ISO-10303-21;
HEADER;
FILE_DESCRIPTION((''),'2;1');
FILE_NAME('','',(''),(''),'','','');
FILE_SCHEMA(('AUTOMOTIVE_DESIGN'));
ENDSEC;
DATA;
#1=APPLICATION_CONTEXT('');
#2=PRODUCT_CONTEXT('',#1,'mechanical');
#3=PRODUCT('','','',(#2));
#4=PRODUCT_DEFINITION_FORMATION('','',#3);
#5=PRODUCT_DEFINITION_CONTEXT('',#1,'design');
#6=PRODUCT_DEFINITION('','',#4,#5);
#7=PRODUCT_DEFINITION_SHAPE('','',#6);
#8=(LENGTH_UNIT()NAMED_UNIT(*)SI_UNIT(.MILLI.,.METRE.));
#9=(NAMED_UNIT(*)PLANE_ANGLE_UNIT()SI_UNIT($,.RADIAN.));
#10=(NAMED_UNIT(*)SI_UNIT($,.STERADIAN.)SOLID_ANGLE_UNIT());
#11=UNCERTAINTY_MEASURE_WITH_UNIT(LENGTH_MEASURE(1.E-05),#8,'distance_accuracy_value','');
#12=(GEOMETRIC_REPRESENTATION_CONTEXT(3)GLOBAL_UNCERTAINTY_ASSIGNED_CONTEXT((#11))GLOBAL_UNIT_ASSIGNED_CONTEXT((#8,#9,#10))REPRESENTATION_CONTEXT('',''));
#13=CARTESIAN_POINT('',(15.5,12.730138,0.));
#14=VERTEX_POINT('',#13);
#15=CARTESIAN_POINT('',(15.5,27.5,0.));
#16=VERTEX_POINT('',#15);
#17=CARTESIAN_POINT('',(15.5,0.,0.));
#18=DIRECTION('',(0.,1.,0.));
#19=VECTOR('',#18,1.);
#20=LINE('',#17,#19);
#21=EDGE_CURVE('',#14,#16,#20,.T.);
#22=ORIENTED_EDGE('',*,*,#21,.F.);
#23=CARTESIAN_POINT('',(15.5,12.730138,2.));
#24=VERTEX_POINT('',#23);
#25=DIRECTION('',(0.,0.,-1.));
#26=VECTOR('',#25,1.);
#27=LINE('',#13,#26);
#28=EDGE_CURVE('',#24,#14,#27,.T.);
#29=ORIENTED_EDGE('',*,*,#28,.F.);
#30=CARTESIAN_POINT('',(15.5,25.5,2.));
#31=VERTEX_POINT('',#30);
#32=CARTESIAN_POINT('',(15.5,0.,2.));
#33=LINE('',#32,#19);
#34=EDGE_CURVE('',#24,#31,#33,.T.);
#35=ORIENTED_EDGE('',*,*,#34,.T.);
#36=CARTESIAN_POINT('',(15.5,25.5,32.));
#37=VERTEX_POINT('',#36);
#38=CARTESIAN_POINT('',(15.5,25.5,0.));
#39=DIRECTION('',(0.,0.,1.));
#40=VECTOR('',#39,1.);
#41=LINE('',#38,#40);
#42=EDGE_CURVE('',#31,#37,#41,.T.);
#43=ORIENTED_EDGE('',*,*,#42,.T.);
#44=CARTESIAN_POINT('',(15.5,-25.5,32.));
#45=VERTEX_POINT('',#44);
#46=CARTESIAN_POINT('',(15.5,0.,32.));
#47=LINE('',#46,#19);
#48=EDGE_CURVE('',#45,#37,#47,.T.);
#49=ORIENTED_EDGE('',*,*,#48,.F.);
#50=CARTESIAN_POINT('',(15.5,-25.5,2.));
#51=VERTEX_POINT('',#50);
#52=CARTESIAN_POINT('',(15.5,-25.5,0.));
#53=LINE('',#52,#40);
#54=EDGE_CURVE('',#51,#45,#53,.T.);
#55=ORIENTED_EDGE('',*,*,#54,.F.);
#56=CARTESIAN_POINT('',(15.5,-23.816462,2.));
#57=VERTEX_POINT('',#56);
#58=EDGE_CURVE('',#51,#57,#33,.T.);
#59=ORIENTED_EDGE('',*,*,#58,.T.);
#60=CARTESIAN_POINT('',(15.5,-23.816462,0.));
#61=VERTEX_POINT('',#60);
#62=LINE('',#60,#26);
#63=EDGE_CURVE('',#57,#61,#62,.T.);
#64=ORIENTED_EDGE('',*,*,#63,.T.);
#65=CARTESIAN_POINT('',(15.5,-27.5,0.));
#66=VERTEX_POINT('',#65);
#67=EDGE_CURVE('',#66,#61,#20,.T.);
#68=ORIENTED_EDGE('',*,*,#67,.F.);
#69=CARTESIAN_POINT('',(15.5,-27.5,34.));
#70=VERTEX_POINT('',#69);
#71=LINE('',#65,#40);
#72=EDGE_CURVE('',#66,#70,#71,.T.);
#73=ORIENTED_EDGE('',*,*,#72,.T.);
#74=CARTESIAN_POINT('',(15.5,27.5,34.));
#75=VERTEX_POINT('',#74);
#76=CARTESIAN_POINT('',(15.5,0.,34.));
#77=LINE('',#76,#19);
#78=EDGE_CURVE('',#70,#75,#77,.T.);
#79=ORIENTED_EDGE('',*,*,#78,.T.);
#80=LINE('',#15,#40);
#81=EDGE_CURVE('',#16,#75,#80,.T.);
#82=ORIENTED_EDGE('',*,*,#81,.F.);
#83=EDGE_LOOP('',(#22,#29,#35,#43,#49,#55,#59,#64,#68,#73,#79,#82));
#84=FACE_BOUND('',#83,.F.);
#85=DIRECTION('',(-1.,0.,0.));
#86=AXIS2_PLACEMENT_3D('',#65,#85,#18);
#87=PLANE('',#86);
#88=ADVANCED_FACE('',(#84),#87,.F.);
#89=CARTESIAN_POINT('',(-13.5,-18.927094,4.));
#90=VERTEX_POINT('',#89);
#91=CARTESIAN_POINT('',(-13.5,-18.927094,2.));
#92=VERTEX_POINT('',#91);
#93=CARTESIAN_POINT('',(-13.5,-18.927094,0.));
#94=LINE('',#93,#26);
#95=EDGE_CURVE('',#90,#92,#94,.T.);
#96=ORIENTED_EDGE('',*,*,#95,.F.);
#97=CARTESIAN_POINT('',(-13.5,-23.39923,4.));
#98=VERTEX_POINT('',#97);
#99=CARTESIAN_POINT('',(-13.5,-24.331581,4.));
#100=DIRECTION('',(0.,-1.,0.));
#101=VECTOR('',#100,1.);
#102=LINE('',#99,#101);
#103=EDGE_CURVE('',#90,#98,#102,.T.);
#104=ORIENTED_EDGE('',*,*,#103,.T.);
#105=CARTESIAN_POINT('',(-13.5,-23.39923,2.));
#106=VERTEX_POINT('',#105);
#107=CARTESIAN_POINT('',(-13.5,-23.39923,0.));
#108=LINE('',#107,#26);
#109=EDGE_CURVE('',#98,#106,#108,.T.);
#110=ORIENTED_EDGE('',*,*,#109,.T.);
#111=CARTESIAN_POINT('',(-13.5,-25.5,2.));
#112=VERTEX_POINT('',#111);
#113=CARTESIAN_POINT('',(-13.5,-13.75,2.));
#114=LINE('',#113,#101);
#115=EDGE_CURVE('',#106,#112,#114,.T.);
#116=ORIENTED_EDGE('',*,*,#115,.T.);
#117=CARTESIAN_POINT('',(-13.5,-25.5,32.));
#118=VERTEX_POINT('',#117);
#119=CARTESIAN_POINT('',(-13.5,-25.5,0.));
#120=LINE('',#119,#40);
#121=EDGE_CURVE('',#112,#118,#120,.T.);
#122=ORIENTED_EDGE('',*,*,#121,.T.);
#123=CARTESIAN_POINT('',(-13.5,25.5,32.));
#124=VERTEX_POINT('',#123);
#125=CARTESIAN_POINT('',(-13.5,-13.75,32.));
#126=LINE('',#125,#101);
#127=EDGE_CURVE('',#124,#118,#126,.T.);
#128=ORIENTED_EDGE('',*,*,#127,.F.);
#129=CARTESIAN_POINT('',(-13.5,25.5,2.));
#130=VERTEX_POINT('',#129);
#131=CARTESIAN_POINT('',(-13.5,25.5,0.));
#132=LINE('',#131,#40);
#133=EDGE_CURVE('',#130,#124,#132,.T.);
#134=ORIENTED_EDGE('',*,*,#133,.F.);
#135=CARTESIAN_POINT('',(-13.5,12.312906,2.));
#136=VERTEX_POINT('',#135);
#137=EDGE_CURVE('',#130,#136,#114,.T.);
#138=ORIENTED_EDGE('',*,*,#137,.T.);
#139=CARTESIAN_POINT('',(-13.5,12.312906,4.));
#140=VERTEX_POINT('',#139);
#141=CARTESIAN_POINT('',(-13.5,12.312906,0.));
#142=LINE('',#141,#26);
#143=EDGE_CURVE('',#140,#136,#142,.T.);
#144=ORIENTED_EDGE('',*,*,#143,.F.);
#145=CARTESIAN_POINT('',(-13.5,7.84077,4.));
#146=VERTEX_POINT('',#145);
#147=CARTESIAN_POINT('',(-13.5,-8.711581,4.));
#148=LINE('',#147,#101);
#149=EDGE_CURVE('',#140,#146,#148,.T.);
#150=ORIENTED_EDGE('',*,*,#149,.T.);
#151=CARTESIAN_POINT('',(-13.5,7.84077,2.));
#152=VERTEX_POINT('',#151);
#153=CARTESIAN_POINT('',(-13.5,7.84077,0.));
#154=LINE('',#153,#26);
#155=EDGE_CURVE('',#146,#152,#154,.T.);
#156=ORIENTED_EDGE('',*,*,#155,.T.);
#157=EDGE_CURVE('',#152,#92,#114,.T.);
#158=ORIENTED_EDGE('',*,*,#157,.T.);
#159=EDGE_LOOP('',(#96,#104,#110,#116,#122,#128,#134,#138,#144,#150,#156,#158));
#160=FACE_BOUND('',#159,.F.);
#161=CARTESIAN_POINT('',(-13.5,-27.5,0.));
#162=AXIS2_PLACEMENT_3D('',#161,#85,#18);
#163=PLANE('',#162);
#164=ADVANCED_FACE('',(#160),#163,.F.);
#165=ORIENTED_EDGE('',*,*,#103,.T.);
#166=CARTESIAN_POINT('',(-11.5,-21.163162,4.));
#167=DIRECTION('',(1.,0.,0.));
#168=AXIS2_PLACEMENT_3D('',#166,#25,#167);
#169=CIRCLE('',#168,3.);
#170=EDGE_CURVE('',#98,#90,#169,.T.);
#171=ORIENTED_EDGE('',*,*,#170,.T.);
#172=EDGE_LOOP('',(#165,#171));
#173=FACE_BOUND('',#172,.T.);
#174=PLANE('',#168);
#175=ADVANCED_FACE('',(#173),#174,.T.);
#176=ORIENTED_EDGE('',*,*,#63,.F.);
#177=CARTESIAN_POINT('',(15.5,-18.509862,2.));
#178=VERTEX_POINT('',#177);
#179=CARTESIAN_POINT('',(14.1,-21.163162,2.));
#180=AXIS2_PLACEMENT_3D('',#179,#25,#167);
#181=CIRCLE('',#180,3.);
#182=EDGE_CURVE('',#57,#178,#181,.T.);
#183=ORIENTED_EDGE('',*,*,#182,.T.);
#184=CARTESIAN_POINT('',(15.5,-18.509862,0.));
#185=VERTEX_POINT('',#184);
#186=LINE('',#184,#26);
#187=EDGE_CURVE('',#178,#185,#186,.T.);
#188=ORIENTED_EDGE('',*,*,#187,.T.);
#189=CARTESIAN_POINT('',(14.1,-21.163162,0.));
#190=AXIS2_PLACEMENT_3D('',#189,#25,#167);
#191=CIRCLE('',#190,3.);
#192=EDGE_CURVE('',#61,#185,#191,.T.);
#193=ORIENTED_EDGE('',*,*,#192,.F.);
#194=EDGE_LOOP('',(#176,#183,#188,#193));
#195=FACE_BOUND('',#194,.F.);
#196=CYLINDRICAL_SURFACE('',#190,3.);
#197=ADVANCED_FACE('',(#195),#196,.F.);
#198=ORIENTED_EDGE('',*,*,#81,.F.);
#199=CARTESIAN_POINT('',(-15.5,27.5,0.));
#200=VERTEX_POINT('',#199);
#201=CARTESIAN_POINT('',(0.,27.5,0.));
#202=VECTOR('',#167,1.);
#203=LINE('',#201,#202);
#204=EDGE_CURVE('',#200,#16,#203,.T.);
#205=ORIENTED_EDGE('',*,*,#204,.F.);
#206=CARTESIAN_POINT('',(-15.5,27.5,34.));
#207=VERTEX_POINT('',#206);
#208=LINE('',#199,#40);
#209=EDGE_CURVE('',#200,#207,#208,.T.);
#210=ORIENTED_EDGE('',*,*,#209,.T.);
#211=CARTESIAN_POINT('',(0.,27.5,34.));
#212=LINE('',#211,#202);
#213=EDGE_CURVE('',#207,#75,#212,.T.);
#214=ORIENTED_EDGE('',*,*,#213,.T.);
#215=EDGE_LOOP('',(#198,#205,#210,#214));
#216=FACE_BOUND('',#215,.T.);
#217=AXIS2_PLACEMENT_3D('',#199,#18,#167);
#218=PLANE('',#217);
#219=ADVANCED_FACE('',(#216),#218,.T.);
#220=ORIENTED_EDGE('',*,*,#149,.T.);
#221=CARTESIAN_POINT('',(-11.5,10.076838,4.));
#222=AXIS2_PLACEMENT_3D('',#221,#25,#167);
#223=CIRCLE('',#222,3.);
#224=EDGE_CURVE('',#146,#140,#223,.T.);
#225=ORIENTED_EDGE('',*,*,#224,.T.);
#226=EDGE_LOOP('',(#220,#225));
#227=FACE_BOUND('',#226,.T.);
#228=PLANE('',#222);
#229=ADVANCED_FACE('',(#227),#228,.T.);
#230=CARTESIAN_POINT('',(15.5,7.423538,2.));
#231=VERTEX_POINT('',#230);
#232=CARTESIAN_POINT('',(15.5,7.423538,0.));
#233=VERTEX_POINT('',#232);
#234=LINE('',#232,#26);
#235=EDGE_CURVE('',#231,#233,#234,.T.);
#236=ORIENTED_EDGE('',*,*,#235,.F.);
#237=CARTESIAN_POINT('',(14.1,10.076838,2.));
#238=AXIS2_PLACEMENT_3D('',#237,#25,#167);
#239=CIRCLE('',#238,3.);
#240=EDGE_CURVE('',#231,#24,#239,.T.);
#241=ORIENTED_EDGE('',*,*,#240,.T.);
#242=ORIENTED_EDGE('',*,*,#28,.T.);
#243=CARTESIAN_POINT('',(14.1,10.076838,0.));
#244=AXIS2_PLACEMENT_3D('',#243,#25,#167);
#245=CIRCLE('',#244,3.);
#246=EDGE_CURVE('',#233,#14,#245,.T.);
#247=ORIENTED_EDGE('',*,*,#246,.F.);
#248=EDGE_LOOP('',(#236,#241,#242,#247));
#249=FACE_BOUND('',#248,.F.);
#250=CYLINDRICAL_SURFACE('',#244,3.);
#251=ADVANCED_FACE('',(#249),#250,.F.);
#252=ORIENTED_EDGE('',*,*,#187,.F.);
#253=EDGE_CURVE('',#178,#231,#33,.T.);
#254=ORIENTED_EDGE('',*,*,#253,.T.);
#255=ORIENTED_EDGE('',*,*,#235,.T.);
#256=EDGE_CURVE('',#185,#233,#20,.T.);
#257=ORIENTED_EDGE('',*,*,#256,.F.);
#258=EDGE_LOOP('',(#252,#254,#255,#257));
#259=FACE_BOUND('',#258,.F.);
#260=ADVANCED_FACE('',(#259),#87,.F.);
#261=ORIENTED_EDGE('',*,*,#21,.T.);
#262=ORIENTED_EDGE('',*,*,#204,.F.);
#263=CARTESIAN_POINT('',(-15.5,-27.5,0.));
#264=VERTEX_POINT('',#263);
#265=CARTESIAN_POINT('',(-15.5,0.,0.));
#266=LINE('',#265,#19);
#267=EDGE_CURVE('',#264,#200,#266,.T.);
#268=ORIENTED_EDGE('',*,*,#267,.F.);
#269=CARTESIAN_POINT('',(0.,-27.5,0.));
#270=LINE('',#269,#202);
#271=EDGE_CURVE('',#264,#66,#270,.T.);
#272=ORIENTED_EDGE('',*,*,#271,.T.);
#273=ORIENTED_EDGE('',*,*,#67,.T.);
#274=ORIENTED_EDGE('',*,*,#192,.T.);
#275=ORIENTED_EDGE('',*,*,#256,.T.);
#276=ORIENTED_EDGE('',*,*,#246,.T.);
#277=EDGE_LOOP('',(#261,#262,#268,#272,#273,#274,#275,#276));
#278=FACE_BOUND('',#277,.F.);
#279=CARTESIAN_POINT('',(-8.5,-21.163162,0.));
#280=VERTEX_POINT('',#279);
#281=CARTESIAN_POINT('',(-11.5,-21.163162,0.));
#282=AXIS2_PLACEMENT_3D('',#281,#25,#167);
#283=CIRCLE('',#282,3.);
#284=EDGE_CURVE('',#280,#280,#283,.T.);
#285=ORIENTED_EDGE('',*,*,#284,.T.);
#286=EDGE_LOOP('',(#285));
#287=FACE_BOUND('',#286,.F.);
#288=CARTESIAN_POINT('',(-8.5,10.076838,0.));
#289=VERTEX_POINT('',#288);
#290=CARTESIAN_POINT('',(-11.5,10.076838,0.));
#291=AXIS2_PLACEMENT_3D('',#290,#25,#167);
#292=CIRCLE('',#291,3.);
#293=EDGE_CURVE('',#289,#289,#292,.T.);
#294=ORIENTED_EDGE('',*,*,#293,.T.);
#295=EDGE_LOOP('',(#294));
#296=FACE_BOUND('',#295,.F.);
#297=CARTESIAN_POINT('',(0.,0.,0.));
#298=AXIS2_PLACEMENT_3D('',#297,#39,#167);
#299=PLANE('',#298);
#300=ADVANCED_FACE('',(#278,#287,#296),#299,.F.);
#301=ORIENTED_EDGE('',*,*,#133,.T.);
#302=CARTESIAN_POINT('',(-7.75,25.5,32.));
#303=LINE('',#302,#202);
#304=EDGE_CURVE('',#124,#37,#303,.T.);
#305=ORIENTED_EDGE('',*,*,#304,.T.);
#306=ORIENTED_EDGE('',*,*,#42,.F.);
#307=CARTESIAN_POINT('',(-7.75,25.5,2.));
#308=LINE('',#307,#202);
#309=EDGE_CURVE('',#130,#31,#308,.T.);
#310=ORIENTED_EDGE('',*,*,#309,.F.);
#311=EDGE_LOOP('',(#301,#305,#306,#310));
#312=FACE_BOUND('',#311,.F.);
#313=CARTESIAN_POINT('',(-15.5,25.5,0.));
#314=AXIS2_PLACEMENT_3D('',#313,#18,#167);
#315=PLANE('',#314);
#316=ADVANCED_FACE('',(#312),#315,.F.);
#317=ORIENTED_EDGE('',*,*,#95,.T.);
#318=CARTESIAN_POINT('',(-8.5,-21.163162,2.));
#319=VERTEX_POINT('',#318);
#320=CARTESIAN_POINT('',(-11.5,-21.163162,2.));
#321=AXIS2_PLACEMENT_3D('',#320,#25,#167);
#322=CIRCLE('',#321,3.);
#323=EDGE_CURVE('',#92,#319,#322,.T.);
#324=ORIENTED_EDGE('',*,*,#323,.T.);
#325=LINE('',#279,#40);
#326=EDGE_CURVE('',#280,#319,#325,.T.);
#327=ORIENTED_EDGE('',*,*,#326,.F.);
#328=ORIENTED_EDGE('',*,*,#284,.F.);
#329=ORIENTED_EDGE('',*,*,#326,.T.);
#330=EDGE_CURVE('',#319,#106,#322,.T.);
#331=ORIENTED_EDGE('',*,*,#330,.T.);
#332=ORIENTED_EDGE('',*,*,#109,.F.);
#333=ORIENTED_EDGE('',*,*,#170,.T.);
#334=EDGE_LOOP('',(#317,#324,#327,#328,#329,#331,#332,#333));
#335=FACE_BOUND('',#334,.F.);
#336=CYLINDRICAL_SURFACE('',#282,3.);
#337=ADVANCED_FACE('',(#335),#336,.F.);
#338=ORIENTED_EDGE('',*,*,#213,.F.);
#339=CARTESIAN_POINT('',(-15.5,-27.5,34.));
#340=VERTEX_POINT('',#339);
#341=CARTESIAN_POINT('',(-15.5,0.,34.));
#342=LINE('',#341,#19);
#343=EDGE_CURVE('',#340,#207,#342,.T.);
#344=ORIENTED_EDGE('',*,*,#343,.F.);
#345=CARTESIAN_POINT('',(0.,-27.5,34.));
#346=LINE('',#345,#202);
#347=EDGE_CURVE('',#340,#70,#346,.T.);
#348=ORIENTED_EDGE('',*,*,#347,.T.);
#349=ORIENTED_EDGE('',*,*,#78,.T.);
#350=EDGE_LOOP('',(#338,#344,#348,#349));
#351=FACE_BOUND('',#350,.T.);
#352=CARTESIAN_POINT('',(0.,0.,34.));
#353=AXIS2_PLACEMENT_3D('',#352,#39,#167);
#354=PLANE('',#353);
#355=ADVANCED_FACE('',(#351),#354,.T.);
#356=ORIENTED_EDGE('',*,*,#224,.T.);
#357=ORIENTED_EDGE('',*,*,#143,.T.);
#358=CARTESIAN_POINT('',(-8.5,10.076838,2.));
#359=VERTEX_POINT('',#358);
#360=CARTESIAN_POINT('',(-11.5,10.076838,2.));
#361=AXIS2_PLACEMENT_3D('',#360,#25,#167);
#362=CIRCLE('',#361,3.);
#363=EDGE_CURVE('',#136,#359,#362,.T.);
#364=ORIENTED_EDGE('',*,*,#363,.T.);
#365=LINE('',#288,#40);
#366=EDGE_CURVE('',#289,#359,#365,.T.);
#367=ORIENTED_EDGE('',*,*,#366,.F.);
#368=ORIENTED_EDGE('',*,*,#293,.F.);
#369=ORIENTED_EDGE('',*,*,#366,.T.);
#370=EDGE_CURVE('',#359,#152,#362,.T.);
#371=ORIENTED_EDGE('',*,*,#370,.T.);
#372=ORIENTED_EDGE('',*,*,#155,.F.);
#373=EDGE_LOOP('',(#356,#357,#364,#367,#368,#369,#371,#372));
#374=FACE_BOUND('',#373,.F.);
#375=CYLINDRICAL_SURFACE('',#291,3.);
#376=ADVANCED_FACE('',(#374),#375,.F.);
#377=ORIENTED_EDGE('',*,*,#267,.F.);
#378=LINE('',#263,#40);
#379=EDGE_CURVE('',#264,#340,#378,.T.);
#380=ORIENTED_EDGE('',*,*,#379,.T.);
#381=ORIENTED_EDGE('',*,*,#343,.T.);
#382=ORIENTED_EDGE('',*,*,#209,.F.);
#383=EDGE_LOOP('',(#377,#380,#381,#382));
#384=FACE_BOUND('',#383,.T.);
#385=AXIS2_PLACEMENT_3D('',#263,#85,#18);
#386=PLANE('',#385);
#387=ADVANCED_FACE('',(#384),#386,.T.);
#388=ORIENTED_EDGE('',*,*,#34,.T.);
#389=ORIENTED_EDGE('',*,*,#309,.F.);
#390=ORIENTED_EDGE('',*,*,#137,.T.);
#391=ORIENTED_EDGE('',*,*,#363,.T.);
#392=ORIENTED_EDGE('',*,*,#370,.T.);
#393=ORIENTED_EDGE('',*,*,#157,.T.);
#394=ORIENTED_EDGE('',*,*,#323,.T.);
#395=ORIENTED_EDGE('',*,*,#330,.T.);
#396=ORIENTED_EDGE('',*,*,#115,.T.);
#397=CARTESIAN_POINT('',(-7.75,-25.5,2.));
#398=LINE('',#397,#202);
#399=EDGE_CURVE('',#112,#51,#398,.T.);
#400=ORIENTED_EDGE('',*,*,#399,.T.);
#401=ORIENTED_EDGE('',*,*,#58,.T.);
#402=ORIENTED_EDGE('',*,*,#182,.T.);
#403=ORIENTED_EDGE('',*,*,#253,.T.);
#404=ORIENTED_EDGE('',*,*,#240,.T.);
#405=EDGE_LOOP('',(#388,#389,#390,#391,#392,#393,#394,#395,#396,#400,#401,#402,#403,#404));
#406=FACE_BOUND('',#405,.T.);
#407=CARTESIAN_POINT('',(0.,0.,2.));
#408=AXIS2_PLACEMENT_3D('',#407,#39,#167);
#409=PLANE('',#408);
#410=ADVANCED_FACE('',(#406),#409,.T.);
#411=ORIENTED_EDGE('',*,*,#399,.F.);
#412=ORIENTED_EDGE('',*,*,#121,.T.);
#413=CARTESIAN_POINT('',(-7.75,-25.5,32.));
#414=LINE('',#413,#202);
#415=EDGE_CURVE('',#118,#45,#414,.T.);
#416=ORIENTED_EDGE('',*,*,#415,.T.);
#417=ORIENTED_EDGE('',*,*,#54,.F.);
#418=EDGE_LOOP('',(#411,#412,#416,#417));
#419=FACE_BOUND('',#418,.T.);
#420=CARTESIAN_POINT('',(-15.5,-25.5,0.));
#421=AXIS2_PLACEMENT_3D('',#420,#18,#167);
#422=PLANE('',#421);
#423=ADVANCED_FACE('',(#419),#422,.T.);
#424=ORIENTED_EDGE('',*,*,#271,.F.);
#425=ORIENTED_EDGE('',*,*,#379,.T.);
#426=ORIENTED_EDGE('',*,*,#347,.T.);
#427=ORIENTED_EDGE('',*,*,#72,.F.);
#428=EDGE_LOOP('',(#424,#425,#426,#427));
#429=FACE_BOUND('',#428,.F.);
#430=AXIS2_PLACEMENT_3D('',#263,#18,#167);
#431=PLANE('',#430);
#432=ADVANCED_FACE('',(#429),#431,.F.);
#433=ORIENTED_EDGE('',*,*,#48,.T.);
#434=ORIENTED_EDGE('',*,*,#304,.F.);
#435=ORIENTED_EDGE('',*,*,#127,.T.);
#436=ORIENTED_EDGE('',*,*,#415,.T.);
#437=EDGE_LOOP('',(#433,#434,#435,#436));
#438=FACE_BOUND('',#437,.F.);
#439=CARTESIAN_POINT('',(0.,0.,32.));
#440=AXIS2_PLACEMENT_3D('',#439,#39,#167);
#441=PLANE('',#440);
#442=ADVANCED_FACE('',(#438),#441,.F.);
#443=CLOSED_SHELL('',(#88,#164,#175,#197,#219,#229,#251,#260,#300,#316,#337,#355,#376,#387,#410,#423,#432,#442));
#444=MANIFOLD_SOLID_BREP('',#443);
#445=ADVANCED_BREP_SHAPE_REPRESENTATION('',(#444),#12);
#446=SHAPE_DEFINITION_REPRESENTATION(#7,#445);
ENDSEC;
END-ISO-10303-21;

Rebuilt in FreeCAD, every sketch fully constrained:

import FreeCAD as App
import Part
import Sketcher
from FreeCAD import Vector
Q = App.Units.Quantity


def faces_at(feature, points):
    """Names of the faces that lie closest to the given points."""
    faces = feature.Shape.Faces
    near = lambda p: min(range(len(faces)), key=lambda i: faces[i].distToShape(Part.Vertex(*p))[0])
    return sorted({f"Face{near(p) + 1}" for p in points})


def add_polygon(sketch, points):
    """Adds a closed chain of lines whose ends are joined by coincident constraints."""
    first, n = sketch.GeometryCount, len(points)
    for a, b in zip(points, points[1:] + points[:1]):
        sketch.addGeometry(Part.LineSegment(App.Vector(*a, 0), App.Vector(*b, 0)), False)
    for i in range(n):
        sketch.addConstraint(Sketcher.Constraint("Coincident", first + i, 2, first + (i + 1) % n, 1))

doc = App.newDocument("Part")
body = doc.addObject("PartDesign::Body", "Body")

# Sketch on XY plane
sketch1 = body.newObject("Sketcher::SketchObject", "Sketch")
sketch1.AttachmentSupport = (doc.getObject("XY_Plane"), [""])
sketch1.MapMode = "FlatFace"
add_polygon(sketch1, [(-16, 28), (-16, -28), (16, -28), (16, 28)])  # lines 0-3
sketch1.addConstraint([
    Sketcher.Constraint("Vertical", 0),
    Sketcher.Constraint("Horizontal", 1),
    Sketcher.Constraint("Vertical", 2),
    Sketcher.Constraint("Horizontal", 3),
    Sketcher.Constraint("Symmetric", 0, 2, 2, 2, -1, 1),
    Sketcher.Constraint("DistanceX", 1, 1, 1, 2, Q("31 mm")),
    Sketcher.Constraint("DistanceY", 0, 2, 0, 1, Q("55 mm")),
])
pad1 = body.newObject("PartDesign::Pad", "Pad")
pad1.Profile = sketch1
pad1.Length = 34
doc.recompute()

thickness = body.newObject("PartDesign::Thickness", "Thickness")
thickness.Base = (pad1, faces_at(pad1, [(15.5, 0, 17)]))
thickness.Value = 2
thickness.Reversed = True
thickness.Join = "Arc"

# Sketch on XY plane
sketch2 = body.newObject("Sketcher::SketchObject", "Sketch001")
sketch2.AttachmentSupport = (doc.getObject("XY_Plane"), [""])
sketch2.MapMode = "FlatFace"
sketch2.addGeometry([
    Part.Circle(Vector(-11.5, 10.1, 0), Vector(0, 0, 1), 3),
    Part.Circle(Vector(-11.5, -21.2, 0), Vector(0, 0, 1), 3),
    Part.Circle(Vector(14.1, 10.1, 0), Vector(0, 0, 1), 3),
    Part.Circle(Vector(14.1, -21.2, 0), Vector(0, 0, 1), 3),
], False)
sketch2.addConstraint([
    Sketcher.Constraint("Equal", 0, 1),
    Sketcher.Constraint("Equal", 1, 2),
    Sketcher.Constraint("Equal", 2, 3),
    Sketcher.Constraint("Horizontal", 0, 3, 2, 3),
    Sketcher.Constraint("Horizontal", 1, 3, 3, 3),
    Sketcher.Constraint("Vertical", 0, 3, 1, 3),
    Sketcher.Constraint("Vertical", 2, 3, 3, 3),
    Sketcher.Constraint("Diameter", 0, Q("6 mm")),
    Sketcher.Constraint("DistanceX", 0, 3, -1, 1, Q("11.5 mm")),
    Sketcher.Constraint("DistanceX", -1, 1, 2, 3, Q("14.1 mm")),
    Sketcher.Constraint("DistanceY", 1, 3, 0, 3, Q("31.24 mm")),
    Sketcher.Constraint("DistanceY", 1, 3, -1, 1, Q("21.163162 mm")),
])
pocket1 = body.newObject("PartDesign::Pocket", "Pocket")
pocket1.Profile = sketch2
pocket1.Length = 4
pocket1.Reversed = True

doc.recompute()
